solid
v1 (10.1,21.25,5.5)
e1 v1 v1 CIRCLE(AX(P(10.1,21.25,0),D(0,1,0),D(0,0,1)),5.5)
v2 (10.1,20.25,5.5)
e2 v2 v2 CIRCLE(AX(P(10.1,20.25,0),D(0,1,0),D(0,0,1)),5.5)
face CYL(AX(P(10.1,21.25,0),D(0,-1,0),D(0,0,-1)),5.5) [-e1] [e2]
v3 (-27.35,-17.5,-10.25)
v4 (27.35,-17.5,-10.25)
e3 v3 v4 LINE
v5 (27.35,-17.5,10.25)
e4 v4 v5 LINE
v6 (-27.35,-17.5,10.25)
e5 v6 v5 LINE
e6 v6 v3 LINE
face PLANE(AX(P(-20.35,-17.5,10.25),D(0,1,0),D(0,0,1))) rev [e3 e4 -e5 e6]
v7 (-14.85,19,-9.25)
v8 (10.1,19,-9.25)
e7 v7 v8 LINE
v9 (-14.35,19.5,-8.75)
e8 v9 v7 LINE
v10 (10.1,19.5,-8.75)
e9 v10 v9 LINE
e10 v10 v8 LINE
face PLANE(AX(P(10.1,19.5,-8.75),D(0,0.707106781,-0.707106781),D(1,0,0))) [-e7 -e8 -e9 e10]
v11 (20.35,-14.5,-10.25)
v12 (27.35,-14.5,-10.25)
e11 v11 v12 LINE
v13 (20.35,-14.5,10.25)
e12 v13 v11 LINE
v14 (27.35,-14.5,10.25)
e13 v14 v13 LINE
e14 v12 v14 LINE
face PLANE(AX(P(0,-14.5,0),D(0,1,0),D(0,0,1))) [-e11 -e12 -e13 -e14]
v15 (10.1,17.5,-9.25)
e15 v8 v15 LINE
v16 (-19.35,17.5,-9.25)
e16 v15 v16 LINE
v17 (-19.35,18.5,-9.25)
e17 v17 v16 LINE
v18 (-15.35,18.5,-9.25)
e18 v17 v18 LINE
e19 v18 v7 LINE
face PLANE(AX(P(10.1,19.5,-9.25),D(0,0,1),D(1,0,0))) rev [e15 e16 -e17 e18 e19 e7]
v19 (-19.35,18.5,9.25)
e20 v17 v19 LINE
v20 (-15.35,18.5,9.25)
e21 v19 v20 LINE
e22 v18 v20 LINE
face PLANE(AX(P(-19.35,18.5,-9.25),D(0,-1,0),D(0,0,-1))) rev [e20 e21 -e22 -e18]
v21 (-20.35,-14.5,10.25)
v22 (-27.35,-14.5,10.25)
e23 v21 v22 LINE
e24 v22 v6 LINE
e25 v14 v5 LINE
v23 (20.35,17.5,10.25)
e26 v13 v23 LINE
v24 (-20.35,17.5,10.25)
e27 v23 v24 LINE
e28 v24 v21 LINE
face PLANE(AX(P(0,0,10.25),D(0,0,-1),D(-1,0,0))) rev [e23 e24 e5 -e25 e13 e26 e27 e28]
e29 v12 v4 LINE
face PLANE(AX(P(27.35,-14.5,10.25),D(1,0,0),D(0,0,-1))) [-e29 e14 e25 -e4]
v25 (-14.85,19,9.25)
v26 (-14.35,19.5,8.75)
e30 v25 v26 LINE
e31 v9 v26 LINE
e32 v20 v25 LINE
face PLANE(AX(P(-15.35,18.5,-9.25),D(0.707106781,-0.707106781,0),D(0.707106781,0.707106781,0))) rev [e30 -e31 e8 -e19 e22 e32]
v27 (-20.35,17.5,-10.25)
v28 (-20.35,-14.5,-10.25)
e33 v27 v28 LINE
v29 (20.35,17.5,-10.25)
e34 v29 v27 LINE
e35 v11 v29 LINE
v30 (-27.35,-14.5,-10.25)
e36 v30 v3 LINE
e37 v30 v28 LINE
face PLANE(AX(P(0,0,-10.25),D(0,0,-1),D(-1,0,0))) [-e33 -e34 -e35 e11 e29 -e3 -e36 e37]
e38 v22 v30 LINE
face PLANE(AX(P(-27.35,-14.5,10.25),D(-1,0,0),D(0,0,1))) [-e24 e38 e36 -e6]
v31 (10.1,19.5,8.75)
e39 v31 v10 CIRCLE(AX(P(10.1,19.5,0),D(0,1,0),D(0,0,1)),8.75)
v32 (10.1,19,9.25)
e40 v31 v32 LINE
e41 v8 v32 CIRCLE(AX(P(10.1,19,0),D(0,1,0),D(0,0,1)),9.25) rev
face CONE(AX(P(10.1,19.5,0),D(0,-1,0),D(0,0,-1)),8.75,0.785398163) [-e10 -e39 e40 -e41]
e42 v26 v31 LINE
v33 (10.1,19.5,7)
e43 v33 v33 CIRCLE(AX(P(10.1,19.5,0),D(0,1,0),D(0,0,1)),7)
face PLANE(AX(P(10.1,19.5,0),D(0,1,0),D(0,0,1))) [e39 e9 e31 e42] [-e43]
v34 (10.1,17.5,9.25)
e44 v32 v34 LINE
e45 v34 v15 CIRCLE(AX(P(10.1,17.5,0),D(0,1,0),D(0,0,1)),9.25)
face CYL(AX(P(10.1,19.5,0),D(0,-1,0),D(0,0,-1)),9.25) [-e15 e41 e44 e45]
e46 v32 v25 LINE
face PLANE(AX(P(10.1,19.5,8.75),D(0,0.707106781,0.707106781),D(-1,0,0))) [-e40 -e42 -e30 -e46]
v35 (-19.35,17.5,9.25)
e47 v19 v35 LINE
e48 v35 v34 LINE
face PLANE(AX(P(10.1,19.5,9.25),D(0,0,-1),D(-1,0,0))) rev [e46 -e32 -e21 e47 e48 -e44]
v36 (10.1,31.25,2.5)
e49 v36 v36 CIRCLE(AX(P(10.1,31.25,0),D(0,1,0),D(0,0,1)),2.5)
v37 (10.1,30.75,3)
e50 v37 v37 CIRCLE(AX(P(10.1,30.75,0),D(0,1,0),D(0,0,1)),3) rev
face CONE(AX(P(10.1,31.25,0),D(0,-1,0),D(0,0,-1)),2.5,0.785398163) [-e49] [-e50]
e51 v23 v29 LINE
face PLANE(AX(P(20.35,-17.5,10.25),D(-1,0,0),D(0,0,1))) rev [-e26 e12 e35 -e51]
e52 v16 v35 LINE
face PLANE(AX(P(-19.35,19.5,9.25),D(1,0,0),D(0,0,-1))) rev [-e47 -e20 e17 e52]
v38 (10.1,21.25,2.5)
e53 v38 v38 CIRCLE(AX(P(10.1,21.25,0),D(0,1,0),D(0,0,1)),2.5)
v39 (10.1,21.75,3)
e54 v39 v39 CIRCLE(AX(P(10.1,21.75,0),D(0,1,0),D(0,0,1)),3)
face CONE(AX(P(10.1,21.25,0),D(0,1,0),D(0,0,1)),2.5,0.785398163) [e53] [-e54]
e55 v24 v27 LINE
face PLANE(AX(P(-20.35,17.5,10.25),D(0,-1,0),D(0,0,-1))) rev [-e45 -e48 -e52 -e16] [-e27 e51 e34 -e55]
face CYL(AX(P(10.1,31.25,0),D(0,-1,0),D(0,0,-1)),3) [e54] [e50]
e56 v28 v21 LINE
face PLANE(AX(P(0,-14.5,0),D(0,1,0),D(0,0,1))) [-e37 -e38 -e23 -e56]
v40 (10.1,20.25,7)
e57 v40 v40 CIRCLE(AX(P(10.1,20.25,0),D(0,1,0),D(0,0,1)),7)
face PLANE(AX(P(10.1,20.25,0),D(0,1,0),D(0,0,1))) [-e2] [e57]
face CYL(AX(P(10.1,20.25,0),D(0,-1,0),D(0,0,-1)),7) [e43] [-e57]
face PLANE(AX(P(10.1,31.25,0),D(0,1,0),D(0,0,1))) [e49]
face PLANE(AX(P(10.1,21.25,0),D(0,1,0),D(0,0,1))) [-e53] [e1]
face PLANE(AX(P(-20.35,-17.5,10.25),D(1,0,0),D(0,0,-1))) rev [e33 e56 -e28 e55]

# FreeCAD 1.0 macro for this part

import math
import FreeCAD as App
import Part
import Sketcher
from FreeCAD import Vector


def edges_at(feature, points):
    """Names of the edges that pass closest to the given points."""
    edges = feature.Shape.Edges
    near = lambda p: min(range(len(edges)), key=lambda i: edges[i].distToShape(Part.Vertex(*p))[0])
    return sorted({f"Edge{near(p) + 1}" for p in points})


def add_polygon(sketch, points):
    """Adds a closed chain of lines whose ends are joined by coincident constraints."""
    first, n = sketch.GeometryCount, len(points)
    for a, b in zip(points, points[1:] + points[:1]):
        sketch.addGeometry(Part.LineSegment(App.Vector(*a, 0), App.Vector(*b, 0)), False)
    for i in range(n):
        sketch.addConstraint(Sketcher.Constraint("Coincident", first + i, 2, first + (i + 1) % n, 1))

doc = App.newDocument("Part")
params = doc.addObject("Spreadsheet::Sheet", "Params")
for row, (alias, value) in enumerate([
    ("sketch1_height", "35 mm"),
    ("sketch1_width", "40.7 mm"),
    ("pad1_length", "20.5 mm"),
    ("sketch2_radius", "9.25 mm"),
    ("sketch2_width", "29.45 mm"),
    ("pad2_length", "2 mm"),
    ("sketch3_width", "4 mm"),
    ("sketch3_width2", "5 mm"),
    ("sketch3_height", "1 mm"),
    ("pocket1_length", "18.5 mm"),
    ("sketch4_diameter", "14 mm"),
    ("pad3_length", "0.75 mm"),
    ("sketch5_diameter", "11 mm"),
    ("pad4_length", "1 mm"),
    ("sketch6_diameter", "6 mm"),
    ("pad5_length", "10 mm"),
    ("chamfer_size", "0.5 mm"),
    ("sketch7_width", "0.5 mm"),
    ("groove_angle", "360 deg"),
    ("sketch8_width", "7 mm"),
    ("sketch8_height", "20.5 mm"),
    ("pad6_length", "3 mm"),
], start=1):
    params.set(f"A{row}", alias)
    params.set(f"B{row}", "=" + value)
    params.setAlias(f"B{row}", alias)

body = doc.addObject("PartDesign::Body", "Body")

# Sketch on XY plane
sketch1 = body.newObject("Sketcher::SketchObject", "Sketch")
sketch1.AttachmentSupport = (doc.getObject("XY_Plane"), [""])
sketch1.MapMode = "FlatFace"
add_polygon(sketch1, [(-20, 18), (-20, -18), (20, -18), (20, 18)])  # lines 0-3
sketch1.addConstraint(Sketcher.Constraint("Vertical", 0))
sketch1.addConstraint(Sketcher.Constraint("Horizontal", 1))
sketch1.addConstraint(Sketcher.Constraint("Vertical", 2))
sketch1.addConstraint(Sketcher.Constraint("Horizontal", 3))
sketch1.addConstraint(Sketcher.Constraint("Symmetric", 0, 2, 2, 2, -1, 1))
sketch1.addConstraint(Sketcher.Constraint("DistanceY", 0, 2, 0, 1, 35.0))
sketch1.addConstraint(Sketcher.Constraint("DistanceX", 1, 1, 1, 2, 40.7))
sketch1.setExpression("Constraints[9]", "Params.sketch1_height")
sketch1.setExpression("Constraints[10]", "Params.sketch1_width")
pad1 = body.newObject("PartDesign::Pad", "Pad")
pad1.Profile = sketch1
pad1.setExpression("Length", "Params.pad1_length")
pad1.Midplane = True

# Sketch on XZ plane
sketch2 = body.newObject("Sketcher::SketchObject", "Sketch001")
sketch2.AttachmentSupport = (doc.getObject("XZ_Plane"), [""])
sketch2.MapMode = "FlatFace"
sketch2.AttachmentOffset = App.Placement(Vector(0, 0, -17.5), App.Rotation())
sketch2.addGeometry(Part.LineSegment(Vector(10, -9, 0), Vector(-19, -9, 0)), False)
sketch2.addGeometry(Part.LineSegment(Vector(-19, -9, 0), Vector(-19, 9, 0)), False)
sketch2.addGeometry(Part.LineSegment(Vector(-19, 9, 0), Vector(10, 9, 0)), False)
sketch2.addGeometry(Part.ArcOfCircle(Part.Circle(Vector(10, 0, 0), Vector(0, 0, 1), 9), math.radians(-90), math.radians(90)), False)
sketch2.addConstraint(Sketcher.Constraint("Coincident", 0, 2, 1, 1))
sketch2.addConstraint(Sketcher.Constraint("Coincident", 1, 2, 2, 1))
sketch2.addConstraint(Sketcher.Constraint("Tangent", 2, 2, 3, 2))
sketch2.addConstraint(Sketcher.Constraint("Tangent", 3, 1, 0, 1))
sketch2.addConstraint(Sketcher.Constraint("Horizontal", 0))
sketch2.addConstraint(Sketcher.Constraint("Vertical", 1))
sketch2.addConstraint(Sketcher.Constraint("Horizontal", 2))
sketch2.addConstraint(Sketcher.Constraint("PointOnObject", 3, 3, -1))
sketch2.addConstraint(Sketcher.Constraint("Radius", 3, 9.25))
sketch2.addConstraint(Sketcher.Constraint("DistanceX", 0, 2, 0, 1, 29.45))
sketch2.addConstraint(Sketcher.Constraint("DistanceX", -1, 1, 3, 3, 10.1))
sketch2.setExpression("Constraints[8]", "Params.sketch2_radius")
sketch2.setExpression("Constraints[9]", "Params.sketch2_width")
pad2 = body.newObject("PartDesign::Pad", "Pad001")
pad2.Profile = sketch2
pad2.setExpression("Length", "Params.pad2_length")
pad2.Reversed = True

# Sketch on XY plane
sketch3 = body.newObject("Sketcher::SketchObject", "Sketch002")
sketch3.AttachmentSupport = (doc.getObject("XY_Plane"), [""])
sketch3.MapMode = "FlatFace"
sketch3.AttachmentOffset = App.Placement(Vector(0, 0, 9.25), App.Rotation())
add_polygon(sketch3, [(-19.4, 19.5), (-19.4, 18.5), (-15.3, 18.5), (-14.3, 19.5)])  # lines 0-3
sketch3.addConstraint(Sketcher.Constraint("Vertical", 0))
sketch3.addConstraint(Sketcher.Constraint("Horizontal", 1))
sketch3.addConstraint(Sketcher.Constraint("Horizontal", 3))
sketch3.addConstraint(Sketcher.Constraint("DistanceX", 1, 1, 1, 2, 4.0))
sketch3.addConstraint(Sketcher.Constraint("DistanceX", 3, 2, 3, 1, 5.0))
sketch3.addConstraint(Sketcher.Constraint("DistanceY", 0, 2, 0, 1, 1.0))
sketch3.addConstraint(Sketcher.Constraint("DistanceY", -1, 1, 0, 2, 18.5))
sketch3.addConstraint(Sketcher.Constraint("DistanceX", 0, 2, -1, 1, 19.35))
sketch3.setExpression("Constraints[7]", "Params.sketch3_width")
sketch3.setExpression("Constraints[8]", "Params.sketch3_width2")
sketch3.setExpression("Constraints[9]", "Params.sketch3_height")
pocket1 = body.newObject("PartDesign::Pocket", "Pocket")
pocket1.Profile = sketch3
pocket1.setExpression("Length", "Params.pocket1_length")

# Sketch on XZ plane
sketch4 = body.newObject("Sketcher::SketchObject", "Sketch003")
sketch4.AttachmentSupport = (doc.getObject("XZ_Plane"), [""])
sketch4.MapMode = "FlatFace"
sketch4.AttachmentOffset = App.Placement(Vector(0, 0, -19.5), App.Rotation())
sketch4.addGeometry(Part.Circle(Vector(10, 0, 0), Vector(0, 0, 1), 7), False)
sketch4.addConstraint(Sketcher.Constraint("PointOnObject", 0, 3, -1))
sketch4.addConstraint(Sketcher.Constraint("Diameter", 0, 14.0))
sketch4.addConstraint(Sketcher.Constraint("DistanceX", -1, 1, 0, 3, 10.1))
sketch4.setExpression("Constraints[1]", "Params.sketch4_diameter")
pad3 = body.newObject("PartDesign::Pad", "Pad002")
pad3.Profile = sketch4
pad3.setExpression("Length", "Params.pad3_length")
pad3.Reversed = True

# Sketch on XZ plane
sketch5 = body.newObject("Sketcher::SketchObject", "Sketch004")
sketch5.AttachmentSupport = (doc.getObject("XZ_Plane"), [""])
sketch5.MapMode = "FlatFace"
sketch5.AttachmentOffset = App.Placement(Vector(0, 0, -20.25), App.Rotation())
sketch5.addGeometry(Part.Circle(Vector(10, 0, 0), Vector(0, 0, 1), 6), False)
sketch5.addConstraint(Sketcher.Constraint("PointOnObject", 0, 3, -1))
sketch5.addConstraint(Sketcher.Constraint("Diameter", 0, 11.0))
sketch5.addConstraint(Sketcher.Constraint("DistanceX", -1, 1, 0, 3, 10.1))
sketch5.setExpression("Constraints[1]", "Params.sketch5_diameter")
pad4 = body.newObject("PartDesign::Pad", "Pad003")
pad4.Profile = sketch5
pad4.setExpression("Length", "Params.pad4_length")
pad4.Reversed = True

# Sketch on XZ plane
sketch6 = body.newObject("Sketcher::SketchObject", "Sketch005")
sketch6.AttachmentSupport = (doc.getObject("XZ_Plane"), [""])
sketch6.MapMode = "FlatFace"
sketch6.AttachmentOffset = App.Placement(Vector(0, 0, -21.25), App.Rotation())
sketch6.addGeometry(Part.Circle(Vector(10.1, 0, 0), Vector(0, 0, 1), 3), False)
sketch6.addConstraint(Sketcher.Constraint("PointOnObject", 0, 3, -1))
sketch6.addConstraint(Sketcher.Constraint("Diameter", 0, 6.0))
sketch6.addConstraint(Sketcher.Constraint("DistanceX", -1, 1, 0, 3, 10.1))
sketch6.setExpression("Constraints[1]", "Params.sketch6_diameter")
pad5 = body.newObject("PartDesign::Pad", "Pad004")
pad5.Profile = sketch6
pad5.setExpression("Length", "Params.pad5_length")
pad5.Reversed = True
doc.recompute()

chamfer = body.newObject("PartDesign::Chamfer", "Chamfer")
chamfer.Base = (pad5, edges_at(pad5, [
    (19.35, 19.5, 0),
    (-2.125, 19.5, -9.25),
    (-2.125, 19.5, 9.25),
    (10.1, 31.25, -3),
]))
chamfer.setExpression("Size", "Params.chamfer_size")

# Sketch on XY plane
sketch7 = body.newObject("Sketcher::SketchObject", "Sketch006")
sketch7.AttachmentSupport = (doc.getObject("XY_Plane"), [""])
sketch7.MapMode = "FlatFace"
add_polygon(sketch7, [(7.1, 21.8), (7.1, 21.2), (7.6, 21.2)])  # lines 0-2
sketch7.addGeometry(Part.LineSegment(Vector(10.1, 21.8, 0), Vector(10.1, 21.2, 0)), True)  # axis
sketch7.addConstraint(Sketcher.Constraint("Vertical", 0))
sketch7.addConstraint(Sketcher.Constraint("Horizontal", 1))
sketch7.addConstraint(Sketcher.Constraint("Vertical", 3))
sketch7.addConstraint(Sketcher.Constraint("Horizontal", 2, 2, 3, 1))
sketch7.addConstraint(Sketcher.Constraint("Horizontal", 1, 2, 3, 2))
sketch7.addConstraint(Sketcher.Constraint("Equal", 1, 0))
sketch7.addConstraint(Sketcher.Constraint("DistanceX", 1, 1, 1, 2, 0.5))
sketch7.addConstraint(Sketcher.Constraint("DistanceX", 2, 2, 3, 1, 3.0))
sketch7.addConstraint(Sketcher.Constraint("DistanceX", -1, 1, 0, 2, 7.1))
sketch7.addConstraint(Sketcher.Constraint("DistanceY", -1, 1, 0, 2, 21.25))
sketch7.setExpression("Constraints[9]", "Params.sketch7_width")
groove = body.newObject("PartDesign::Groove", "Groove")
groove.Profile = sketch7
groove.ReferenceAxis = (sketch7, ["Axis0"])
groove.setExpression("Angle", "Params.groove_angle")

# Sketch on XZ plane
sketch8 = body.newObject("Sketcher::SketchObject", "Sketch007")
sketch8.AttachmentSupport = (doc.getObject("XZ_Plane"), [""])
sketch8.MapMode = "FlatFace"
sketch8.AttachmentOffset = App.Placement(Vector(0, 0, 17.5), App.Rotation())
add_polygon(sketch8, [(-27, 10), (-27, -10), (-20, -10), (-20, 10)])  # lines 0-3
add_polygon(sketch8, [(20, 10), (20, -10), (27, -10), (27, 10)])  # lines 4-7
sketch8.addConstraint(Sketcher.Constraint("Vertical", 0))
sketch8.addConstraint(Sketcher.Constraint("Horizontal", 1))
sketch8.addConstraint(Sketcher.Constraint("Vertical", 2))
sketch8.addConstraint(Sketcher.Constraint("Horizontal", 3))
sketch8.addConstraint(Sketcher.Constraint("Vertical", 4))
sketch8.addConstraint(Sketcher.Constraint("Horizontal", 5))
sketch8.addConstraint(Sketcher.Constraint("Vertical", 6))
sketch8.addConstraint(Sketcher.Constraint("Horizontal", 7))
sketch8.addConstraint(Sketcher.Constraint("Symmetric", 2, 2, 4, 2, -1, 1))
sketch8.addConstraint(Sketcher.Constraint("Symmetric", 0, 2, 6, 2, -1, 1))
sketch8.addConstraint(Sketcher.Constraint("Horizontal", 1, 2, 4, 2))
sketch8.addConstraint(Sketcher.Constraint("DistanceX", 1, 1, 1, 2, 7.0))
sketch8.addConstraint(Sketcher.Constraint("DistanceY", 0, 2, 0, 1, 20.5))
sketch8.addConstraint(Sketcher.Constraint("DistanceX", 1, 2, 4, 2, 40.7))
sketch8.setExpression("Constraints[19]", "Params.sketch8_width")
sketch8.setExpression("Constraints[20]", "Params.sketch8_height")
pad6 = body.newObject("PartDesign::Pad", "Pad005")
pad6.Profile = sketch8
pad6.setExpression("Length", "Params.pad6_length")
pad6.Reversed = True

doc.recompute()
